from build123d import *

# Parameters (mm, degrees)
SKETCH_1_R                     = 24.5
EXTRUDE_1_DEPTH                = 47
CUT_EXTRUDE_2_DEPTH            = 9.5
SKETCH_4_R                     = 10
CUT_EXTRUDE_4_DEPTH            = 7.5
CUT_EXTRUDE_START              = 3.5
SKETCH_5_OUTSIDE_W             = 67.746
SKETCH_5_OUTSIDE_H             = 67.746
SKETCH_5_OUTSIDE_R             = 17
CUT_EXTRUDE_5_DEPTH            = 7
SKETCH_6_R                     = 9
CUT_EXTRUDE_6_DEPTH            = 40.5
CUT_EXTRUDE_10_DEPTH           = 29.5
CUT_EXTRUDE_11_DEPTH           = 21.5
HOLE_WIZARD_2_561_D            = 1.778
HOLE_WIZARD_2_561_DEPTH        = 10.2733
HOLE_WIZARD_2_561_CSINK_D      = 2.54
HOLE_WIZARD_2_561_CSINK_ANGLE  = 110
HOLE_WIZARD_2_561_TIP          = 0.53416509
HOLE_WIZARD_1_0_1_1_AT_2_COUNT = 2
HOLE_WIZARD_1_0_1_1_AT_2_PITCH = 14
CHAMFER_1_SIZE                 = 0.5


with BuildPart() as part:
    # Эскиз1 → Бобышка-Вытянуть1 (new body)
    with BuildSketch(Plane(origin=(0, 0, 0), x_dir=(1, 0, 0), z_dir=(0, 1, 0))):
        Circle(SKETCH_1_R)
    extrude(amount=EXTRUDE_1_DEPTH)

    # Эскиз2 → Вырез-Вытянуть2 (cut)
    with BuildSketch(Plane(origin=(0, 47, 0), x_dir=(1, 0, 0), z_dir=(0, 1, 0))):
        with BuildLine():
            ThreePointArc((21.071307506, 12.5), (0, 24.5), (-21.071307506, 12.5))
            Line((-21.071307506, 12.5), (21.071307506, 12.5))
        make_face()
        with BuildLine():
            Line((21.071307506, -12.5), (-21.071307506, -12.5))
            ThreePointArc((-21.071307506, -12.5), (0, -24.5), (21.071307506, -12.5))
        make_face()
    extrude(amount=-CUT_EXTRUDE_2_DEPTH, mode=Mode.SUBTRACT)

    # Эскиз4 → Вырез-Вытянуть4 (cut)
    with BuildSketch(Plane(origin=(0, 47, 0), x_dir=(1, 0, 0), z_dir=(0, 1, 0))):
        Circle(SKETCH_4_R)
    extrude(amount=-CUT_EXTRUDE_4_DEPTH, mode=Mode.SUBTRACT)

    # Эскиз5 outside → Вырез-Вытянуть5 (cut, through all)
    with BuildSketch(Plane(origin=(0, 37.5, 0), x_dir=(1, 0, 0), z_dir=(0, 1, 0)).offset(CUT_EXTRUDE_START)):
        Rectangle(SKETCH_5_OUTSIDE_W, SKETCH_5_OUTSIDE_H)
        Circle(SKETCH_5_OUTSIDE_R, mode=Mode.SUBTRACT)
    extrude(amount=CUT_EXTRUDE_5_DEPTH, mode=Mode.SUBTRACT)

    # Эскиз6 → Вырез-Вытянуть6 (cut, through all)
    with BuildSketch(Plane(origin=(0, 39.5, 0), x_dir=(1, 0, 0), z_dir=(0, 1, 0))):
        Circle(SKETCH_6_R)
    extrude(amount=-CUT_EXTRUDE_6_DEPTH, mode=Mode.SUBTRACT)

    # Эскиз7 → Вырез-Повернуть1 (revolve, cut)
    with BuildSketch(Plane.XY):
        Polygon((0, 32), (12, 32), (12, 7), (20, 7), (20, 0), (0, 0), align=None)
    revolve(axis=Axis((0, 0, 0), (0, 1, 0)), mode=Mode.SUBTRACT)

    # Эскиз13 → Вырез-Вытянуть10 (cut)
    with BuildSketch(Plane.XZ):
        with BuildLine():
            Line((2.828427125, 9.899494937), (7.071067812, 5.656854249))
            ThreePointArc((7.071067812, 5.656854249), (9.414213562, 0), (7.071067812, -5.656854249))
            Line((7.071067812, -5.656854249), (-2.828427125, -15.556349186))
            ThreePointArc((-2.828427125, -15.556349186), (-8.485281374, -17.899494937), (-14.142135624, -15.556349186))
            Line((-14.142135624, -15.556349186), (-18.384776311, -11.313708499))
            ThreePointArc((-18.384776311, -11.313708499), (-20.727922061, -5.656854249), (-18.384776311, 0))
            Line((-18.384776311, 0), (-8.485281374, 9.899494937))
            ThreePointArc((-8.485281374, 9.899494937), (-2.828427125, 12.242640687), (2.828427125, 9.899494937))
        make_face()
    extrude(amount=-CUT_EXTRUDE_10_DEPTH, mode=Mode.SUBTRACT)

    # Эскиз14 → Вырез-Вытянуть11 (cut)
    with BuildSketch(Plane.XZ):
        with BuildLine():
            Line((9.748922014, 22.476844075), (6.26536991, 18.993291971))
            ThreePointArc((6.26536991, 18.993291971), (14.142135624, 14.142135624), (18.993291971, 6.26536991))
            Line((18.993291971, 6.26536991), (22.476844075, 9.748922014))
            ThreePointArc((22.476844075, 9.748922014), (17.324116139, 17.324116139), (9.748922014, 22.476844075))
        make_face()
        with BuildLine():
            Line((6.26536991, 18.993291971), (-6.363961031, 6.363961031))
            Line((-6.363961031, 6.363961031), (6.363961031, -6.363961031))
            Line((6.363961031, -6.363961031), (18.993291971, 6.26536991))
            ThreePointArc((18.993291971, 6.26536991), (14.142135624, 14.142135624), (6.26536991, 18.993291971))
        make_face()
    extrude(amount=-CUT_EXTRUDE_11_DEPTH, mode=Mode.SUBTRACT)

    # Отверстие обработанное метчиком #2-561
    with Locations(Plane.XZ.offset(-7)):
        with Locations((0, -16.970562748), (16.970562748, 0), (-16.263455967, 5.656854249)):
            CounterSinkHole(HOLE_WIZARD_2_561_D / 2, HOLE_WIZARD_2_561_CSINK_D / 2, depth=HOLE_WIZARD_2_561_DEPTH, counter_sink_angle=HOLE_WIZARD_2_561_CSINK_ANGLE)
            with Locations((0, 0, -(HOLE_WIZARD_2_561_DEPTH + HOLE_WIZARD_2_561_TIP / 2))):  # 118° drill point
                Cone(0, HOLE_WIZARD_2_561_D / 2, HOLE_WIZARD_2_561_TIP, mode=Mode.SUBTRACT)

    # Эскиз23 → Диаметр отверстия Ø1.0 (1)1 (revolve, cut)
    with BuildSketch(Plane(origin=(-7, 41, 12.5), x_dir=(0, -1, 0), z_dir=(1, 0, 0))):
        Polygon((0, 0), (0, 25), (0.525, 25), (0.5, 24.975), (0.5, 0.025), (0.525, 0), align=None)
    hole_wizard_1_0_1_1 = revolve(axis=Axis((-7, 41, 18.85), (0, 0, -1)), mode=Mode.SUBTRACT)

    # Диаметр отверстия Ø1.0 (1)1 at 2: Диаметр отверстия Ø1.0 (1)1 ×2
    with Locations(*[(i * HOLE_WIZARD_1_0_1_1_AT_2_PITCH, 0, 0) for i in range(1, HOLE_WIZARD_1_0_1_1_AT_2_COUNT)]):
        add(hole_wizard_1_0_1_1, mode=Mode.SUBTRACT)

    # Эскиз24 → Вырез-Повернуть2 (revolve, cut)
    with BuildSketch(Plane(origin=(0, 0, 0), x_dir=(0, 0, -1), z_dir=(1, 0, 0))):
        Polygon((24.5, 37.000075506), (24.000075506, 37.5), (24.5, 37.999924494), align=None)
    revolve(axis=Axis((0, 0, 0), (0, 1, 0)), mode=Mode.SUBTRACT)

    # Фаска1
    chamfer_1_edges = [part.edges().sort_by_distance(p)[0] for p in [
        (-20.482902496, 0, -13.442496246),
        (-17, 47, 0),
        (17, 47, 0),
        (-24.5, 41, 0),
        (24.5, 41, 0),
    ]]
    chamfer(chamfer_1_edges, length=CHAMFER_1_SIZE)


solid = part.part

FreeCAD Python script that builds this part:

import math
import FreeCAD as App
import Part
import Sketcher
from FreeCAD import Vector
Q = App.Units.Quantity


def edges_at(feature, points):
    """Names of the edges that pass closest to the given points."""
    edges = feature.Shape.Edges
    near = lambda p: min(range(len(edges)), key=lambda i: edges[i].distToShape(Part.Vertex(*p))[0])
    return sorted({f"Edge{near(p) + 1}" for p in points})

doc = App.newDocument("Part")
params = doc.addObject("Spreadsheet::Sheet", "Params")
for row, (alias, value) in enumerate([
    ("sketch1_diameter", "49 mm"),
    ("pad1_length", "47 mm"),
    ("sketch2_radius", "24.5 mm"),
    ("pocket1_length", "9.5 mm"),
    ("sketch3_diameter", "20 mm"),
    ("pocket2_length", "7.5 mm"),
    ("sketch4_diameter", "34 mm"),
    ("sketch5_diameter", "18 mm"),
    ("sketch6_width", "12 mm"),
    ("sketch6_width2", "20 mm"),
    ("sketch6_height", "32 mm"),
    ("sketch6_height2", "7 mm"),
    ("groove_angle", "360 deg"),
    ("sketch7_radius", "8 mm"),
    ("sketch7_length", "6 mm"),
    ("pocket5_length", "29.5 mm"),
    ("sketch8_radius", "24.5 mm"),
    ("sketch8_length", "18 mm"),
    ("pocket6_length", "21.5 mm"),
    ("hole_diameter", "1.778 mm"),
    ("hole_depth", "10.2733 mm"),
    ("hole_csink_diameter", "2.54 mm"),
    ("sketch10_height", "25 mm"),
    ("sketch10_height2", "24.95 mm"),
    ("groove2_angle", "360 deg"),
    ("linearpattern_pitch", "14 mm"),
    ("groove3_angle", "360 deg"),
    ("chamfer_size", "0.5 mm"),
], start=1):
    params.set(f"A{row}", alias)
    params.set(f"B{row}", "=" + value)
    params.setAlias(f"B{row}", alias)

body = doc.addObject("PartDesign::Body", "Body")

sketch1 = body.newObject("Sketcher::SketchObject", "Sketch")
sketch1.AttachmentSupport = (doc.getObject("XZ_Plane"), [""])
sketch1.MapMode = "FlatFace"
sketch1.addGeometry(Part.Circle(Vector(0, 0, 0), Vector(0, 0, 1), 24), False)
sketch1.addConstraint(Sketcher.Constraint("Coincident", 0, 3, -1, 1))
sketch1.addConstraint(Sketcher.Constraint("Diameter", 0, Q("49 mm")))
sketch1.setExpression("Constraints[1]", "Params.sketch1_diameter")
pad1 = body.newObject("PartDesign::Pad", "Pad")
pad1.Profile = sketch1
pad1.setExpression("Length", "Params.pad1_length")
pad1.Reversed = True

sketch2 = body.newObject("Sketcher::SketchObject", "Sketch001")
sketch2.AttachmentSupport = (doc.getObject("XZ_Plane"), [""])
sketch2.MapMode = "FlatFace"
sketch2.AttachmentOffset = App.Placement(Vector(0, 0, -47), App.Rotation())
sketch2.addGeometry(Part.ArcOfCircle(Part.Circle(Vector(0, 0, 0), Vector(0, 0, 1), 25), math.radians(-149), math.radians(-31)), False)
sketch2.addGeometry(Part.LineSegment(Vector(-21, -12, 0), Vector(21, -12, 0)), False)
sketch2.addGeometry(Part.LineSegment(Vector(21, 12, 0), Vector(-21, 12, 0)), False)
sketch2.addGeometry(Part.ArcOfCircle(Part.Circle(Vector(0, 0, 0), Vector(0, 0, 1), 25), math.radians(31), math.radians(149)), False)
sketch2.addConstraint(Sketcher.Constraint("Coincident", 0, 1, 1, 1))
sketch2.addConstraint(Sketcher.Constraint("Coincident", 1, 2, 0, 2))
sketch2.addConstraint(Sketcher.Constraint("Coincident", 2, 1, 3, 1))
sketch2.addConstraint(Sketcher.Constraint("Coincident", 3, 2, 2, 2))
sketch2.addConstraint(Sketcher.Constraint("Horizontal", 1))
sketch2.addConstraint(Sketcher.Constraint("Horizontal", 2))
sketch2.addConstraint(Sketcher.Constraint("Coincident", 0, 3, -1, 1))
sketch2.addConstraint(Sketcher.Constraint("Coincident", 3, 3, -1, 1))
sketch2.addConstraint(Sketcher.Constraint("Equal", 0, 3))
sketch2.addConstraint(Sketcher.Constraint("Vertical", 1, 2, 2, 1))
sketch2.addConstraint(Sketcher.Constraint("Radius", 0, Q("24.5 mm")))
sketch2.addConstraint(Sketcher.Constraint("DistanceY", 1, 2, 2, 1, Q("25 mm")))
sketch2.setExpression("Constraints[10]", "Params.sketch2_radius")
pocket1 = body.newObject("PartDesign::Pocket", "Pocket")
pocket1.Profile = sketch2
pocket1.setExpression("Length", "Params.pocket1_length")
pocket1.Reversed = True

sketch3 = body.newObject("Sketcher::SketchObject", "Sketch002")
sketch3.AttachmentSupport = (doc.getObject("XZ_Plane"), [""])
sketch3.MapMode = "FlatFace"
sketch3.AttachmentOffset = App.Placement(Vector(0, 0, -47), App.Rotation())
sketch3.addGeometry(Part.Circle(Vector(0, 0, 0), Vector(0, 0, 1), 10), False)
sketch3.addConstraint(Sketcher.Constraint("Coincident", 0, 3, -1, 1))
sketch3.addConstraint(Sketcher.Constraint("Diameter", 0, Q("20 mm")))
sketch3.setExpression("Constraints[1]", "Params.sketch3_diameter")
pocket2 = body.newObject("PartDesign::Pocket", "Pocket001")
pocket2.Profile = sketch3
pocket2.setExpression("Length", "Params.pocket2_length")
pocket2.Reversed = True

sketch4 = body.newObject("Sketcher::SketchObject", "Sketch003")
sketch4.AttachmentSupport = (doc.getObject("XZ_Plane"), [""])
sketch4.MapMode = "FlatFace"
sketch4.AttachmentOffset = App.Placement(Vector(0, 0, -41), App.Rotation())
sketch4.addGeometry(Part.LineSegment(Vector(-34, -34, 0), Vector(-34, 34, 0)), False)
sketch4.addGeometry(Part.LineSegment(Vector(-34, 34, 0), Vector(34, 34, 0)), False)
sketch4.addGeometry(Part.LineSegment(Vector(34, 34, 0), Vector(34, -34, 0)), False)
sketch4.addGeometry(Part.LineSegment(Vector(34, -34, 0), Vector(-34, -34, 0)), False)
sketch4.addGeometry(Part.Circle(Vector(0, 0, 0), Vector(0, 0, 1), 17), False)
sketch4.addConstraint(Sketcher.Constraint("Coincident", 0, 2, 1, 1))
sketch4.addConstraint(Sketcher.Constraint("Coincident", 1, 2, 2, 1))
sketch4.addConstraint(Sketcher.Constraint("Coincident", 2, 2, 3, 1))
sketch4.addConstraint(Sketcher.Constraint("Coincident", 3, 2, 0, 1))
sketch4.addConstraint(Sketcher.Constraint("Vertical", 0))
sketch4.addConstraint(Sketcher.Constraint("Horizontal", 1))
sketch4.addConstraint(Sketcher.Constraint("Vertical", 2))
sketch4.addConstraint(Sketcher.Constraint("Horizontal", 3))
sketch4.addConstraint(Sketcher.Constraint("Coincident", 4, 3, -1, 1))
sketch4.addConstraint(Sketcher.Constraint("Symmetric", 0, 2, 2, 2, -1, 1))
sketch4.addConstraint(Sketcher.Constraint("Equal", 3, 0))
sketch4.addConstraint(Sketcher.Constraint("Diameter", 4, Q("34 mm")))
sketch4.addConstraint(Sketcher.Constraint("DistanceX", 1, 1, 1, 2, Q("67.746 mm")))
sketch4.setExpression("Constraints[11]", "Params.sketch4_diameter")
pocket3 = body.newObject("PartDesign::Pocket", "Pocket002")
pocket3.Profile = sketch4
pocket3.Type = "ThroughAll"

sketch5 = body.newObject("Sketcher::SketchObject", "Sketch004")
sketch5.AttachmentSupport = (doc.getObject("XZ_Plane"), [""])
sketch5.MapMode = "FlatFace"
sketch5.AttachmentOffset = App.Placement(Vector(0, 0, -39.5), App.Rotation())
sketch5.addGeometry(Part.Circle(Vector(0, 0, 0), Vector(0, 0, 1), 9), False)
sketch5.addConstraint(Sketcher.Constraint("Coincident", 0, 3, -1, 1))
sketch5.addConstraint(Sketcher.Constraint("Diameter", 0, Q("18 mm")))
sketch5.setExpression("Constraints[1]", "Params.sketch5_diameter")
pocket4 = body.newObject("PartDesign::Pocket", "Pocket003")
pocket4.Profile = sketch5
pocket4.Type = "ThroughAll"
pocket4.Reversed = True

sketch6 = body.newObject("Sketcher::SketchObject", "Sketch005")
sketch6.AttachmentSupport = (doc.getObject("XY_Plane"), [""])
sketch6.MapMode = "FlatFace"
sketch6.addGeometry(Part.LineSegment(Vector(12, 32, 0), Vector(0, 32, 0)), False)
sketch6.addGeometry(Part.LineSegment(Vector(0, 32, 0), Vector(0, 0, 0)), False)
sketch6.addGeometry(Part.LineSegment(Vector(0, 0, 0), Vector(20, 0, 0)), False)
sketch6.addGeometry(Part.LineSegment(Vector(20, 0, 0), Vector(20, 7, 0)), False)
sketch6.addGeometry(Part.LineSegment(Vector(20, 7, 0), Vector(12, 7, 0)), False)
sketch6.addGeometry(Part.LineSegment(Vector(12, 7, 0), Vector(12, 32, 0)), False)
sketch6.addConstraint(Sketcher.Constraint("Coincident", 0, 2, 1, 1))
sketch6.addConstraint(Sketcher.Constraint("Coincident", 1, 2, 2, 1))
sketch6.addConstraint(Sketcher.Constraint("Coincident", 2, 2, 3, 1))
sketch6.addConstraint(Sketcher.Constraint("Coincident", 3, 2, 4, 1))
sketch6.addConstraint(Sketcher.Constraint("Coincident", 4, 2, 5, 1))
sketch6.addConstraint(Sketcher.Constraint("Coincident", 5, 2, 0, 1))
sketch6.addConstraint(Sketcher.Constraint("Horizontal", 0))
sketch6.addConstraint(Sketcher.Constraint("Vertical", 1))
sketch6.addConstraint(Sketcher.Constraint("Horizontal", 2))
sketch6.addConstraint(Sketcher.Constraint("Vertical", 3))
sketch6.addConstraint(Sketcher.Constraint("Horizontal", 4))
sketch6.addConstraint(Sketcher.Constraint("Vertical", 5))
sketch6.addConstraint(Sketcher.Constraint("Coincident", 1, 2, -1, 1))
sketch6.addConstraint(Sketcher.Constraint("DistanceX", 0, 2, 0, 1, Q("12 mm")))
sketch6.addConstraint(Sketcher.Constraint("DistanceX", 2, 1, 2, 2, Q("20 mm")))
sketch6.addConstraint(Sketcher.Constraint("DistanceY", 1, 2, 1, 1, Q("32 mm")))
sketch6.addConstraint(Sketcher.Constraint("DistanceY", 3, 1, 3, 2, Q("7 mm")))
sketch6.setExpression("Constraints[13]", "Params.sketch6_width")
sketch6.setExpression("Constraints[14]", "Params.sketch6_width2")
sketch6.setExpression("Constraints[15]", "Params.sketch6_height")
sketch6.setExpression("Constraints[16]", "Params.sketch6_height2")
groove = body.newObject("PartDesign::Groove", "Groove")
groove.Profile = sketch6
groove.ReferenceAxis = (sketch6, ["V_Axis"])
groove.setExpression("Angle", "Params.groove_angle")

sketch7 = body.newObject("Sketcher::SketchObject", "Sketch006")
sketch7.AttachmentSupport = (doc.getObject("XZ_Plane"), [""])
sketch7.MapMode = "FlatFace"
sketch7.addGeometry(Part.LineSegment(Vector(7, 6, 0), Vector(3, 10, 0)), False)
sketch7.addGeometry(Part.ArcOfCircle(Part.Circle(Vector(-3, 4, 0), Vector(0, 0, 1), 8), math.radians(45), math.radians(135)), False)
sketch7.addGeometry(Part.LineSegment(Vector(-8, 10, 0), Vector(-18, 0, 0)), False)
sketch7.addGeometry(Part.ArcOfCircle(Part.Circle(Vector(-13, -6, 0), Vector(0, 0, 1), 8), math.radians(135), math.radians(225)), False)
sketch7.addGeometry(Part.LineSegment(Vector(-18, -11, 0), Vector(-14, -16, 0)), False)
sketch7.addGeometry(Part.ArcOfCircle(Part.Circle(Vector(-8, -10, 0), Vector(0, 0, 1), 8), math.radians(-135), math.radians(-45)), False)
sketch7.addGeometry(Part.LineSegment(Vector(-3, -16, 0), Vector(7, -6, 0)), False)
sketch7.addGeometry(Part.ArcOfCircle(Part.Circle(Vector(1, 0, 0), Vector(0, 0, 1), 8), math.radians(-45), math.radians(45)), False)
sketch7.addConstraint(Sketcher.Constraint("Tangent", 0, 2, 1, 1))
sketch7.addConstraint(Sketcher.Constraint("Tangent", 1, 2, 2, 1))
sketch7.addConstraint(Sketcher.Constraint("Tangent", 2, 2, 3, 1))
sketch7.addConstraint(Sketcher.Constraint("Tangent", 3, 2, 4, 1))
sketch7.addConstraint(Sketcher.Constraint("Tangent", 4, 2, 5, 1))
sketch7.addConstraint(Sketcher.Constraint("Tangent", 5, 2, 6, 1))
sketch7.addConstraint(Sketcher.Constraint("Tangent", 6, 2, 7, 1))
sketch7.addConstraint(Sketcher.Constraint("Tangent", 7, 2, 0, 1))
sketch7.addConstraint(Sketcher.Constraint("Equal", 1, 3))
sketch7.addConstraint(Sketcher.Constraint("Equal", 3, 5))
sketch7.addConstraint(Sketcher.Constraint("Equal", 5, 7))
sketch7.addConstraint(Sketcher.Constraint("Symmetric", 6, 2, 7, 2, -1))
sketch7.addConstraint(Sketcher.Constraint("PointOnObject", 2, 2, -1))
sketch7.addConstraint(Sketcher.Constraint("Perpendicular", 0, 2))
sketch7.addConstraint(Sketcher.Constraint("Perpendicular", 2, 4))
sketch7.addConstraint(Sketcher.Constraint("Perpendicular", 4, 6))
sketch7.addConstraint(Sketcher.Constraint("Radius", 1, Q("8 mm")))
sketch7.addConstraint(Sketcher.Constraint("Distance", 0, Q("6 mm")))
sketch7.addConstraint(Sketcher.Constraint("DistanceX", 5, 3, -1, 1, Q("8.485281 mm")))
sketch7.setExpression("Constraints[16]", "Params.sketch7_radius")
sketch7.setExpression("Constraints[17]", "Params.sketch7_length")
pocket5 = body.newObject("PartDesign::Pocket", "Pocket004")
pocket5.Profile = sketch7
pocket5.setExpression("Length", "Params.pocket5_length")

sketch8 = body.newObject("Sketcher::SketchObject", "Sketch007")
sketch8.AttachmentSupport = (doc.getObject("XZ_Plane"), [""])
sketch8.MapMode = "FlatFace"
sketch8.addGeometry(Part.LineSegment(Vector(9.7, 22.5, 0), Vector(6.3, 19, 0)), False)
sketch8.addGeometry(Part.LineSegment(Vector(6.3, 19, 0), Vector(-6.4, 6.4, 0)), False)
sketch8.addGeometry(Part.LineSegment(Vector(-6.4, 6.4, 0), Vector(6.4, -6.4, 0)), False)
sketch8.addGeometry(Part.LineSegment(Vector(6.4, -6.4, 0), Vector(19, 6.3, 0)), False)
sketch8.addGeometry(Part.LineSegment(Vector(19, 6.3, 0), Vector(22.5, 9.7, 0)), False)
sketch8.addGeometry(Part.ArcOfCircle(Part.Circle(Vector(0, 0, 0), Vector(0, 0, 1), 24.5), math.radians(23), math.radians(67)), False)
sketch8.addConstraint(Sketcher.Constraint("Coincident", 0, 2, 1, 1))
sketch8.addConstraint(Sketcher.Constraint("Coincident", 1, 2, 2, 1))
sketch8.addConstraint(Sketcher.Constraint("Coincident", 2, 2, 3, 1))
sketch8.addConstraint(Sketcher.Constraint("Coincident", 3, 2, 4, 1))
sketch8.addConstraint(Sketcher.Constraint("Coincident", 4, 2, 5, 1))
sketch8.addConstraint(Sketcher.Constraint("Coincident", 5, 2, 0, 1))
sketch8.addConstraint(Sketcher.Constraint("Coincident", 5, 3, -1, 1))
sketch8.addConstraint(Sketcher.Constraint("Symmetric", 1, 2, 2, 2, -1, 1))
sketch8.addConstraint(Sketcher.Constraint("Parallel", 0, 1))
sketch8.addConstraint(Sketcher.Constraint("Perpendicular", 1, 2))
sketch8.addConstraint(Sketcher.Constraint("Perpendicular", 2, 3))
sketch8.addConstraint(Sketcher.Constraint("Parallel", 3, 4))
sketch8.addConstraint(Sketcher.Constraint("Equal", 1, 3))
sketch8.addConstraint(Sketcher.Constraint("Radius", 5, Q("24.5 mm")))
sketch8.addConstraint(Sketcher.Constraint("Angle", 0, Q("-135 deg")))
sketch8.addConstraint(Sketcher.Constraint("Distance", 2, Q("18 mm")))
sketch8.addConstraint(Sketcher.Constraint("Distance", 1, Q("17.860571 mm")))
sketch8.setExpression("Constraints[13]", "Params.sketch8_radius")
sketch8.setExpression("Constraints[15]", "Params.sketch8_length")
pocket6 = body.newObject("PartDesign::Pocket", "Pocket005")
pocket6.Profile = sketch8
pocket6.setExpression("Length", "Params.pocket6_length")

sketch9 = body.newObject("Sketcher::SketchObject", "Sketch008")
sketch9.AttachmentSupport = (doc.getObject("XZ_Plane"), [""])
sketch9.MapMode = "FlatFace"
sketch9.AttachmentOffset = App.Placement(Vector(0, 0, -7), App.Rotation())
sketch9.addGeometry(Part.Circle(Vector(0, -17, 0), Vector(0, 0, 1), 0.9), False)
sketch9.addGeometry(Part.Circle(Vector(17, 0, 0), Vector(0, 0, 1), 0.9), False)
sketch9.addGeometry(Part.Circle(Vector(-16.3, 5.7, 0), Vector(0, 0, 1), 0.9), False)
sketch9.addConstraint(Sketcher.Constraint("Equal", 0, 1))
sketch9.addConstraint(Sketcher.Constraint("Equal", 1, 2))
sketch9.addConstraint(Sketcher.Constraint("PointOnObject", 0, 3, -2))
sketch9.addConstraint(Sketcher.Constraint("PointOnObject", 1, 3, -1))
sketch9.addConstraint(Sketcher.Constraint("Diameter", 0, Q("1.778 mm")))
sketch9.addConstraint(Sketcher.Constraint("DistanceX", 2, 3, 1, 3, Q("33.234019 mm")))
sketch9.addConstraint(Sketcher.Constraint("DistanceY", 0, 3, -1, 1, Q("16.970563 mm")))
sketch9.addConstraint(Sketcher.Constraint("DistanceX", -1, 1, 1, 3, Q("16.970563 mm")))
sketch9.addConstraint(Sketcher.Constraint("DistanceY", -1, 1, 2, 3, Q("5.656854 mm")))
doc.recompute()
hole = body.newObject("PartDesign::Hole", "Hole")
hole.Profile = sketch9
hole.ThreadType = "None"
hole.setExpression("Diameter", "Params.hole_diameter")
hole.DepthType = "Dimension"
hole.setExpression("Depth", "Params.hole_depth")
hole.DrillPoint = "Angled"
hole.DrillPointAngle = 118
hole.HoleCutType = "Countersink"
hole.setExpression("HoleCutDiameter", "Params.hole_csink_diameter")
hole.HoleCutCountersinkAngle = 110

sketch10 = body.newObject("Sketcher::SketchObject", "Sketch009")
sketch10.AttachmentSupport = (doc.getObject("YZ_Plane"), [""])
sketch10.MapMode = "FlatFace"
sketch10.AttachmentOffset = App.Placement(Vector(0, 0, -7), App.Rotation())
sketch10.addGeometry(Part.LineSegment(Vector(41, -12.5, 0), Vector(41, 12.5, 0)), False)
sketch10.addGeometry(Part.LineSegment(Vector(41, 12.5, 0), Vector(40.475, 12.5, 0)), False)
sketch10.addGeometry(Part.LineSegment(Vector(40.475, 12.5, 0), Vector(40.5, 12.475, 0)), False)
sketch10.addGeometry(Part.LineSegment(Vector(40.5, 12.475, 0), Vector(40.5, -12.475, 0)), False)
sketch10.addGeometry(Part.LineSegment(Vector(40.5, -12.475, 0), Vector(40.475, -12.5, 0)), False)
sketch10.addGeometry(Part.LineSegment(Vector(40.475, -12.5, 0), Vector(41, -12.5, 0)), False)
sketch10.addGeometry(Part.LineSegment(Vector(41, 12.5, 0), Vector(41, -12.5, 0)), True)
sketch10.addConstraint(Sketcher.Constraint("Coincident", 0, 2, 1, 1))
sketch10.addConstraint(Sketcher.Constraint("Coincident", 1, 2, 2, 1))
sketch10.addConstraint(Sketcher.Constraint("Coincident", 2, 2, 3, 1))
sketch10.addConstraint(Sketcher.Constraint("Coincident", 3, 2, 4, 1))
sketch10.addConstraint(Sketcher.Constraint("Coincident", 4, 2, 5, 1))
sketch10.addConstraint(Sketcher.Constraint("Coincident", 5, 2, 0, 1))
sketch10.addConstraint(Sketcher.Constraint("Vertical", 0))
sketch10.addConstraint(Sketcher.Constraint("Horizontal", 1))
sketch10.addConstraint(Sketcher.Constraint("Vertical", 3))
sketch10.addConstraint(Sketcher.Constraint("Horizontal", 5))
sketch10.addConstraint(Sketcher.Constraint("Vertical", 6))
sketch10.addConstraint(Sketcher.Constraint("Coincident", 6, 1, 0, 2))
sketch10.addConstraint(Sketcher.Constraint("Symmetric", 1, 2, 4, 2, -1))
sketch10.addConstraint(Sketcher.Constraint("Perpendicular", 2, 4))
sketch10.addConstraint(Sketcher.Constraint("Horizontal", 4, 2, 6, 2))
sketch10.addConstraint(Sketcher.Constraint("Equal", 2, 4))
sketch10.addConstraint(Sketcher.Constraint("DistanceY", 0, 1, 0, 2, Q("25 mm")))
sketch10.addConstraint(Sketcher.Constraint("DistanceX", -1, 1, 0, 2, Q("41 mm")))
sketch10.addConstraint(Sketcher.Constraint("DistanceY", 3, 2, 3, 1, Q("24.95 mm")))
sketch10.addConstraint(Sketcher.Constraint("DistanceX", -1, 1, 2, 2, Q("40.5 mm")))
sketch10.setExpression("Constraints[16]", "Params.sketch10_height")
sketch10.setExpression("Constraints[18]", "Params.sketch10_height2")
groove2 = body.newObject("PartDesign::Groove", "Groove001")
groove2.Profile = sketch10
groove2.ReferenceAxis = (sketch10, ["Axis0"])
groove2.setExpression("Angle", "Params.groove2_angle")
doc.recompute()

linearpattern = body.newObject("PartDesign::LinearPattern", "LinearPattern")
linearpattern.Originals = [groove2]
linearpattern.Direction = (doc.getObject("X_Axis"), [""])
linearpattern.Mode = "offset"
linearpattern.setExpression("Offset", "Params.linearpattern_pitch")
linearpattern.Occurrences = 2
body.Tip = linearpattern

sketch11 = body.newObject("Sketcher::SketchObject", "Sketch010")
sketch11.AttachmentSupport = (doc.getObject("YZ_Plane"), [""])
sketch11.MapMode = "FlatFace"
sketch11.addGeometry(Part.LineSegment(Vector(37.5, -24, 0), Vector(37, -24.5, 0)), False)
sketch11.addGeometry(Part.LineSegment(Vector(37, -24.5, 0), Vector(38, -24.5, 0)), False)
sketch11.addGeometry(Part.LineSegment(Vector(38, -24.5, 0), Vector(37.5, -24, 0)), False)
sketch11.addConstraint(Sketcher.Constraint("Coincident", 0, 2, 1, 1))
sketch11.addConstraint(Sketcher.Constraint("Coincident", 1, 2, 2, 1))
sketch11.addConstraint(Sketcher.Constraint("Coincident", 2, 2, 0, 1))
sketch11.addConstraint(Sketcher.Constraint("Horizontal", 1))
sketch11.addConstraint(Sketcher.Constraint("Perpendicular", 0, 2))
sketch11.addConstraint(Sketcher.Constraint("Equal", 0, 2))
sketch11.addConstraint(Sketcher.Constraint("DistanceY", 0, 2, -1, 1, Q("24.5 mm")))
sketch11.addConstraint(Sketcher.Constraint("DistanceX", -1, 1, 2, 2, Q("37.5 mm")))
sketch11.addConstraint(Sketcher.Constraint("Distance", 0, Q("0.707 mm")))
groove3 = body.newObject("PartDesign::Groove", "Groove002")
groove3.Profile = sketch11
groove3.ReferenceAxis = (sketch11, ["H_Axis"])
groove3.setExpression("Angle", "Params.groove3_angle")
doc.recompute()

chamfer = body.newObject("PartDesign::Chamfer", "Chamfer")
chamfer.Base = (groove3, edges_at(groove3, [
    (-20.483, 0, -13.442),
    (-17, 47, 0),
    (17, 47, 0),
    (-24.5, 41, 0),
    (24.5, 41, 0),
]))
chamfer.setExpression("Size", "Params.chamfer_size")

doc.recompute()
